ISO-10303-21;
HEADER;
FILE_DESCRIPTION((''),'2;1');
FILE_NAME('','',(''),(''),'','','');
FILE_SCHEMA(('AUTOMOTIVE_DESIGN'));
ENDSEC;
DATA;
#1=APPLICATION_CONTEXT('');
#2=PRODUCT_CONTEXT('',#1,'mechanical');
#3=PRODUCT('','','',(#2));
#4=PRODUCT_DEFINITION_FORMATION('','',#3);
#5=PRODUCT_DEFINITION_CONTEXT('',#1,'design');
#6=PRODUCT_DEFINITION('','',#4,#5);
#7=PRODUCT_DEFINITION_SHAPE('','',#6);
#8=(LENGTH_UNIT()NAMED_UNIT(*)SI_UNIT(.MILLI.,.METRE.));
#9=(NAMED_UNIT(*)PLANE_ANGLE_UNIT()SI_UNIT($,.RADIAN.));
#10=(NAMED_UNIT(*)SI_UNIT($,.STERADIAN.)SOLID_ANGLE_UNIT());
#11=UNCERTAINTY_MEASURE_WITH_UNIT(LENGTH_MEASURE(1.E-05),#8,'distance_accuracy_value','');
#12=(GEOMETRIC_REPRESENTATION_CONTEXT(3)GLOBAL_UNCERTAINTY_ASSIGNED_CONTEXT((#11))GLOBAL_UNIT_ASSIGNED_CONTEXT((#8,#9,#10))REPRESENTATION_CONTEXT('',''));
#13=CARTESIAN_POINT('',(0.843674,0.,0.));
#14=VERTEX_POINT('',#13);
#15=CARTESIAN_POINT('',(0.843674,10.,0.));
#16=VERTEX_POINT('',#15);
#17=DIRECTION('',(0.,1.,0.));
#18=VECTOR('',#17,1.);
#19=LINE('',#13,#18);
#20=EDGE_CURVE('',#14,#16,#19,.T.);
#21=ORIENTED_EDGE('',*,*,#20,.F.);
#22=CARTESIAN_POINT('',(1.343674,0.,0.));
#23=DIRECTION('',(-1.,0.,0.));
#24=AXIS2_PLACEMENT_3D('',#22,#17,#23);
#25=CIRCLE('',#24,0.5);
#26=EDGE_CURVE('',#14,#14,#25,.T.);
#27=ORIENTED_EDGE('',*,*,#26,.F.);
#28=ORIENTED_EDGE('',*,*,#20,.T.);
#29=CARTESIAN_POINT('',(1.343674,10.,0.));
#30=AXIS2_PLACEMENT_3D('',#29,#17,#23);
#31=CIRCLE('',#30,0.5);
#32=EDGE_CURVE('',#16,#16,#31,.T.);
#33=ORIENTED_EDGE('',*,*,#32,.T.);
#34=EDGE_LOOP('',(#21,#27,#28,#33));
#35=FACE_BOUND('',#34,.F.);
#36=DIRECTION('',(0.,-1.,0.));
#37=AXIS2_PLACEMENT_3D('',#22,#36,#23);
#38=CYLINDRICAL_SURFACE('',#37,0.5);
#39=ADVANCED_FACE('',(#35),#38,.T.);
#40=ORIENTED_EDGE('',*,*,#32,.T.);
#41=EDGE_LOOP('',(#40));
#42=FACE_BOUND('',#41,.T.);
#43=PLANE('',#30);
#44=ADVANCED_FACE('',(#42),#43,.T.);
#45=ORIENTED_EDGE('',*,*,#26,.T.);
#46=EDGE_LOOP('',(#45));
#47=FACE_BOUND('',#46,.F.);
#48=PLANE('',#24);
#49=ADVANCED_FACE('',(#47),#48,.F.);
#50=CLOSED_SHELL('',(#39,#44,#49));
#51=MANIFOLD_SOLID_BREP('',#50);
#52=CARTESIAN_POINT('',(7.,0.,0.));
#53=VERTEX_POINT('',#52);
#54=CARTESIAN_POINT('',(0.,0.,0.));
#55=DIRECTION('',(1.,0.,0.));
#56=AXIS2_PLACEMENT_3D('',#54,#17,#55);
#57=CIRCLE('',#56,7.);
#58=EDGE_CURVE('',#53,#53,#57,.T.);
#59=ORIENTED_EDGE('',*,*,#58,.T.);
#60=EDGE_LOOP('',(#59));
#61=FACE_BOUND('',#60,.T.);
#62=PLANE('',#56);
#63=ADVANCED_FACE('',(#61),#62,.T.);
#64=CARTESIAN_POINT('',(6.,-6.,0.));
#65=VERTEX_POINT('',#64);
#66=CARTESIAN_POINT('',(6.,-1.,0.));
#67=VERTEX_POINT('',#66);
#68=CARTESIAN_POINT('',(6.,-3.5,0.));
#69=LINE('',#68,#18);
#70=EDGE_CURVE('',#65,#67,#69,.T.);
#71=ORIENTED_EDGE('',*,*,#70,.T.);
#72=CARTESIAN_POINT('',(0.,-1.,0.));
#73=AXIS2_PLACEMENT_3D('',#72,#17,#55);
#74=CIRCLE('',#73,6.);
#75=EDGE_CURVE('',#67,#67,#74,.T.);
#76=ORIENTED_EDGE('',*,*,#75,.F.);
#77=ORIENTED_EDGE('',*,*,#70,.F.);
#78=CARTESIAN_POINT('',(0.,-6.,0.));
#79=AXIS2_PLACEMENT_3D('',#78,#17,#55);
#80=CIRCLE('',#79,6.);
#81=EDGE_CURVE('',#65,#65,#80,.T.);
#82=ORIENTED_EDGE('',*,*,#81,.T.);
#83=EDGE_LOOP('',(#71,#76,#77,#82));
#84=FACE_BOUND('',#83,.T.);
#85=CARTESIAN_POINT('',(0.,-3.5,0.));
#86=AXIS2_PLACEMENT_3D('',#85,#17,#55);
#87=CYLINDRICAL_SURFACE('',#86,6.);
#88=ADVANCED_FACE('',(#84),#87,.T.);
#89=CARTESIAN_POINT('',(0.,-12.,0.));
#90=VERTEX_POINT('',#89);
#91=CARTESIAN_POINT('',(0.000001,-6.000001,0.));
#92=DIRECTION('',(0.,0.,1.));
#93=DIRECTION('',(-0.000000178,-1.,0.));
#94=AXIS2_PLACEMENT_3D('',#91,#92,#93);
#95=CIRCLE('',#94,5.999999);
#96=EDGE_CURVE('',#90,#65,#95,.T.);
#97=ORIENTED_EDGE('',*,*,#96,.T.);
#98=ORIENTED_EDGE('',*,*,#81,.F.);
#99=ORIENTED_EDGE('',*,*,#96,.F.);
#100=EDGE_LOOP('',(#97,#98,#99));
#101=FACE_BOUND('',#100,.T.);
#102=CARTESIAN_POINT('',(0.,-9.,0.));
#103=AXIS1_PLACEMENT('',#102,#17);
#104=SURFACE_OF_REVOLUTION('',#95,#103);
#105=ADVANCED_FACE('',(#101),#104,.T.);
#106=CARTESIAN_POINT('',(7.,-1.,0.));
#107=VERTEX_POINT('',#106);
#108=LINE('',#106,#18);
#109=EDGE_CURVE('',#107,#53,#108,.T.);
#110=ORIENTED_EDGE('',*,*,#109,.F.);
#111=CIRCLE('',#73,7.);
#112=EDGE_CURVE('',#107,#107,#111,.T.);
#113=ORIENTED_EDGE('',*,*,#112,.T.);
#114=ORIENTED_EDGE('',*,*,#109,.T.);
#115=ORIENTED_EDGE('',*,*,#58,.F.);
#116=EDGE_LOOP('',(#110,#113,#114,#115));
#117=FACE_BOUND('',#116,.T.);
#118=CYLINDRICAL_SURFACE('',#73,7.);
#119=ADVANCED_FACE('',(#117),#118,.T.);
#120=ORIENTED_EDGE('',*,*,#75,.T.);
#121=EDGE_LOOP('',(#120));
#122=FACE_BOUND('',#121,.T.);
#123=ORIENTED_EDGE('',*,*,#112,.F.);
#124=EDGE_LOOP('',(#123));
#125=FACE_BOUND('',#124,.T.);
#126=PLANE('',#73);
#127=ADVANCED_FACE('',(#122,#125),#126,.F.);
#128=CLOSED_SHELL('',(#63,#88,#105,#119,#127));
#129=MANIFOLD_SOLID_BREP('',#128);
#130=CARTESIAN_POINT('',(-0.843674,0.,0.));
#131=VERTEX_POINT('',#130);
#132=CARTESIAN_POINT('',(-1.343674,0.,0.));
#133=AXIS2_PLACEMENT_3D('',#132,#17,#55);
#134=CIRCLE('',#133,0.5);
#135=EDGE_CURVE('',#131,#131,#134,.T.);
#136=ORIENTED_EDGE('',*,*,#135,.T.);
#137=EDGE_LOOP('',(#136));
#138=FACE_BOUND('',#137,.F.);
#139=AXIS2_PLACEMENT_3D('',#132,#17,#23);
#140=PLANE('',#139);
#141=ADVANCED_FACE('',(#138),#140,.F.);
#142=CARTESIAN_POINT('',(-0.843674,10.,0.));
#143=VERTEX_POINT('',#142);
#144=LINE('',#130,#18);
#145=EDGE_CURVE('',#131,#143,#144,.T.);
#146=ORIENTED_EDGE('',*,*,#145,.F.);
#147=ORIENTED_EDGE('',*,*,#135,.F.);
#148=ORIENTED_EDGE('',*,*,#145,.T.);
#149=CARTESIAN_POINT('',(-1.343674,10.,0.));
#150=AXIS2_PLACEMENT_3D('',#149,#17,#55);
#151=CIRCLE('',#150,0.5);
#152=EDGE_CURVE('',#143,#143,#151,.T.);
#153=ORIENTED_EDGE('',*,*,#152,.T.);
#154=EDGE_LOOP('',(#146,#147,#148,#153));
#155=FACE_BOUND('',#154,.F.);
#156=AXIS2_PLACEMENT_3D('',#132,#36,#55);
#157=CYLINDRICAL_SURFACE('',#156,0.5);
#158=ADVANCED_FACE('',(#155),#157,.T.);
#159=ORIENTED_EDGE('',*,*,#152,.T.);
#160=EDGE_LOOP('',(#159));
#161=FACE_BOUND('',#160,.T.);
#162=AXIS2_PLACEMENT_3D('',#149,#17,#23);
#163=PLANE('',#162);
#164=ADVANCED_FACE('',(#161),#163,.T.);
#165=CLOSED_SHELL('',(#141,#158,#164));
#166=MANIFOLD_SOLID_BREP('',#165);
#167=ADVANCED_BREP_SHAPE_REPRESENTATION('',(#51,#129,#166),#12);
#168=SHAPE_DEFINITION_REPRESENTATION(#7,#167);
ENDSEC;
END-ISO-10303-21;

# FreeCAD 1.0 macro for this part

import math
import FreeCAD as App
import Part
import Sketcher
Q = App.Units.Quantity

doc = App.newDocument("Part")
params = doc.addObject("Spreadsheet::Sheet", "Params")
for row, (alias, value) in enumerate([
    ("sketch1_radius", "5.999999 mm"),
    ("sketch1_width", "7 mm"),
    ("sketch1_height", "12 mm"),
    ("revolution_angle", "360 deg"),
    ("sketch2_diameter", "1 mm"),
    ("pad1_length", "10 mm"),
], start=1):
    params.set(f"A{row}", alias)
    params.set(f"B{row}", "=" + value)
    params.setAlias(f"B{row}", alias)

body = doc.addObject("PartDesign::Body", "Body")

# Sketch on XY plane
sketch1 = body.newObject("Sketcher::SketchObject", "Sketch")
sketch1.AttachmentSupport = (doc.getObject("XY_Plane"), [""])
sketch1.MapMode = "FlatFace"
sketch1.addGeometry(Part.LineSegment(App.Vector(7, 0, 0), App.Vector(0, 0, 0)), False)
sketch1.addGeometry(Part.LineSegment(App.Vector(0, 0, 0), App.Vector(0, -12, 0)), False)
sketch1.addGeometry(Part.ArcOfCircle(Part.Circle(App.Vector(0.000001, -6.000001, 0), App.Vector(0, 0, 1), 5.999999), math.radians(-90.00001), math.radians(0.00001)), False)
sketch1.addGeometry(Part.LineSegment(App.Vector(6, -6, 0), App.Vector(6, -1, 0)), False)
sketch1.addGeometry(Part.LineSegment(App.Vector(6, -1, 0), App.Vector(7, -1, 0)), False)
sketch1.addGeometry(Part.LineSegment(App.Vector(7, -1, 0), App.Vector(7, 0, 0)), False)
sketch1.addConstraint(Sketcher.Constraint("Coincident", 0, 2, 1, 1))
sketch1.addConstraint(Sketcher.Constraint("Coincident", 1, 2, 2, 1))
sketch1.addConstraint(Sketcher.Constraint("Tangent", 2, 2, 3, 1))
sketch1.addConstraint(Sketcher.Constraint("Coincident", 3, 2, 4, 1))
sketch1.addConstraint(Sketcher.Constraint("Coincident", 4, 2, 5, 1))
sketch1.addConstraint(Sketcher.Constraint("Coincident", 5, 2, 0, 1))
sketch1.addConstraint(Sketcher.Constraint("Horizontal", 0))
sketch1.addConstraint(Sketcher.Constraint("Vertical", 1))
sketch1.addConstraint(Sketcher.Constraint("Vertical", 3))
sketch1.addConstraint(Sketcher.Constraint("Horizontal", 4))
sketch1.addConstraint(Sketcher.Constraint("Vertical", 5))
sketch1.addConstraint(Sketcher.Constraint("Coincident", 0, 2, -1, 1))
sketch1.addConstraint(Sketcher.Constraint("PointOnObject", 2, 3, -2))
sketch1.addConstraint(Sketcher.Constraint("Equal", 4, 5))
sketch1.addConstraint(Sketcher.Constraint("Radius", 2, Q("5.999999 mm")))
sketch1.addConstraint(Sketcher.Constraint("DistanceX", 0, 2, 0, 1, Q("7 mm")))
sketch1.addConstraint(Sketcher.Constraint("DistanceY", 1, 2, 1, 1, Q("12 mm")))
sketch1.setExpression("Constraints[14]", "Params.sketch1_radius")
sketch1.setExpression("Constraints[15]", "Params.sketch1_width")
sketch1.setExpression("Constraints[16]", "Params.sketch1_height")
revolution = body.newObject("PartDesign::Revolution", "Revolution")
revolution.Profile = sketch1
revolution.ReferenceAxis = (sketch1, ["V_Axis"])
revolution.setExpression("Angle", "Params.revolution_angle")
body2 = doc.addObject("PartDesign::Body", "Body001")
body2.AllowCompound = True

# Sketch on XZ plane
sketch2 = body2.newObject("Sketcher::SketchObject", "Sketch001")
sketch2.AttachmentSupport = (doc.getObject("XZ_Plane001"), [""])
sketch2.MapMode = "FlatFace"
sketch2.addGeometry(Part.Circle(App.Vector(1.343674, 0, 0), App.Vector(0, 0, 1), 0.5), False)
sketch2.addGeometry(Part.Circle(App.Vector(-1.343674, 0, 0), App.Vector(0, 0, 1), 0.5), False)
sketch2.addConstraint(Sketcher.Constraint("Equal", 0, 1))
sketch2.addConstraint(Sketcher.Constraint("Symmetric", 0, 3, 1, 3, -1, 1))
sketch2.addConstraint(Sketcher.Constraint("PointOnObject", 0, 3, -1))
sketch2.addConstraint(Sketcher.Constraint("Diameter", 0, Q("1 mm")))
sketch2.addConstraint(Sketcher.Constraint("DistanceX", 1, 3, 0, 3, Q("2.687348 mm")))
sketch2.setExpression("Constraints[3]", "Params.sketch2_diameter")
pad1 = body2.newObject("PartDesign::Pad", "Pad")
pad1.Profile = sketch2
pad1.setExpression("Length", "Params.pad1_length")
pad1.Reversed = True

doc.recompute()
